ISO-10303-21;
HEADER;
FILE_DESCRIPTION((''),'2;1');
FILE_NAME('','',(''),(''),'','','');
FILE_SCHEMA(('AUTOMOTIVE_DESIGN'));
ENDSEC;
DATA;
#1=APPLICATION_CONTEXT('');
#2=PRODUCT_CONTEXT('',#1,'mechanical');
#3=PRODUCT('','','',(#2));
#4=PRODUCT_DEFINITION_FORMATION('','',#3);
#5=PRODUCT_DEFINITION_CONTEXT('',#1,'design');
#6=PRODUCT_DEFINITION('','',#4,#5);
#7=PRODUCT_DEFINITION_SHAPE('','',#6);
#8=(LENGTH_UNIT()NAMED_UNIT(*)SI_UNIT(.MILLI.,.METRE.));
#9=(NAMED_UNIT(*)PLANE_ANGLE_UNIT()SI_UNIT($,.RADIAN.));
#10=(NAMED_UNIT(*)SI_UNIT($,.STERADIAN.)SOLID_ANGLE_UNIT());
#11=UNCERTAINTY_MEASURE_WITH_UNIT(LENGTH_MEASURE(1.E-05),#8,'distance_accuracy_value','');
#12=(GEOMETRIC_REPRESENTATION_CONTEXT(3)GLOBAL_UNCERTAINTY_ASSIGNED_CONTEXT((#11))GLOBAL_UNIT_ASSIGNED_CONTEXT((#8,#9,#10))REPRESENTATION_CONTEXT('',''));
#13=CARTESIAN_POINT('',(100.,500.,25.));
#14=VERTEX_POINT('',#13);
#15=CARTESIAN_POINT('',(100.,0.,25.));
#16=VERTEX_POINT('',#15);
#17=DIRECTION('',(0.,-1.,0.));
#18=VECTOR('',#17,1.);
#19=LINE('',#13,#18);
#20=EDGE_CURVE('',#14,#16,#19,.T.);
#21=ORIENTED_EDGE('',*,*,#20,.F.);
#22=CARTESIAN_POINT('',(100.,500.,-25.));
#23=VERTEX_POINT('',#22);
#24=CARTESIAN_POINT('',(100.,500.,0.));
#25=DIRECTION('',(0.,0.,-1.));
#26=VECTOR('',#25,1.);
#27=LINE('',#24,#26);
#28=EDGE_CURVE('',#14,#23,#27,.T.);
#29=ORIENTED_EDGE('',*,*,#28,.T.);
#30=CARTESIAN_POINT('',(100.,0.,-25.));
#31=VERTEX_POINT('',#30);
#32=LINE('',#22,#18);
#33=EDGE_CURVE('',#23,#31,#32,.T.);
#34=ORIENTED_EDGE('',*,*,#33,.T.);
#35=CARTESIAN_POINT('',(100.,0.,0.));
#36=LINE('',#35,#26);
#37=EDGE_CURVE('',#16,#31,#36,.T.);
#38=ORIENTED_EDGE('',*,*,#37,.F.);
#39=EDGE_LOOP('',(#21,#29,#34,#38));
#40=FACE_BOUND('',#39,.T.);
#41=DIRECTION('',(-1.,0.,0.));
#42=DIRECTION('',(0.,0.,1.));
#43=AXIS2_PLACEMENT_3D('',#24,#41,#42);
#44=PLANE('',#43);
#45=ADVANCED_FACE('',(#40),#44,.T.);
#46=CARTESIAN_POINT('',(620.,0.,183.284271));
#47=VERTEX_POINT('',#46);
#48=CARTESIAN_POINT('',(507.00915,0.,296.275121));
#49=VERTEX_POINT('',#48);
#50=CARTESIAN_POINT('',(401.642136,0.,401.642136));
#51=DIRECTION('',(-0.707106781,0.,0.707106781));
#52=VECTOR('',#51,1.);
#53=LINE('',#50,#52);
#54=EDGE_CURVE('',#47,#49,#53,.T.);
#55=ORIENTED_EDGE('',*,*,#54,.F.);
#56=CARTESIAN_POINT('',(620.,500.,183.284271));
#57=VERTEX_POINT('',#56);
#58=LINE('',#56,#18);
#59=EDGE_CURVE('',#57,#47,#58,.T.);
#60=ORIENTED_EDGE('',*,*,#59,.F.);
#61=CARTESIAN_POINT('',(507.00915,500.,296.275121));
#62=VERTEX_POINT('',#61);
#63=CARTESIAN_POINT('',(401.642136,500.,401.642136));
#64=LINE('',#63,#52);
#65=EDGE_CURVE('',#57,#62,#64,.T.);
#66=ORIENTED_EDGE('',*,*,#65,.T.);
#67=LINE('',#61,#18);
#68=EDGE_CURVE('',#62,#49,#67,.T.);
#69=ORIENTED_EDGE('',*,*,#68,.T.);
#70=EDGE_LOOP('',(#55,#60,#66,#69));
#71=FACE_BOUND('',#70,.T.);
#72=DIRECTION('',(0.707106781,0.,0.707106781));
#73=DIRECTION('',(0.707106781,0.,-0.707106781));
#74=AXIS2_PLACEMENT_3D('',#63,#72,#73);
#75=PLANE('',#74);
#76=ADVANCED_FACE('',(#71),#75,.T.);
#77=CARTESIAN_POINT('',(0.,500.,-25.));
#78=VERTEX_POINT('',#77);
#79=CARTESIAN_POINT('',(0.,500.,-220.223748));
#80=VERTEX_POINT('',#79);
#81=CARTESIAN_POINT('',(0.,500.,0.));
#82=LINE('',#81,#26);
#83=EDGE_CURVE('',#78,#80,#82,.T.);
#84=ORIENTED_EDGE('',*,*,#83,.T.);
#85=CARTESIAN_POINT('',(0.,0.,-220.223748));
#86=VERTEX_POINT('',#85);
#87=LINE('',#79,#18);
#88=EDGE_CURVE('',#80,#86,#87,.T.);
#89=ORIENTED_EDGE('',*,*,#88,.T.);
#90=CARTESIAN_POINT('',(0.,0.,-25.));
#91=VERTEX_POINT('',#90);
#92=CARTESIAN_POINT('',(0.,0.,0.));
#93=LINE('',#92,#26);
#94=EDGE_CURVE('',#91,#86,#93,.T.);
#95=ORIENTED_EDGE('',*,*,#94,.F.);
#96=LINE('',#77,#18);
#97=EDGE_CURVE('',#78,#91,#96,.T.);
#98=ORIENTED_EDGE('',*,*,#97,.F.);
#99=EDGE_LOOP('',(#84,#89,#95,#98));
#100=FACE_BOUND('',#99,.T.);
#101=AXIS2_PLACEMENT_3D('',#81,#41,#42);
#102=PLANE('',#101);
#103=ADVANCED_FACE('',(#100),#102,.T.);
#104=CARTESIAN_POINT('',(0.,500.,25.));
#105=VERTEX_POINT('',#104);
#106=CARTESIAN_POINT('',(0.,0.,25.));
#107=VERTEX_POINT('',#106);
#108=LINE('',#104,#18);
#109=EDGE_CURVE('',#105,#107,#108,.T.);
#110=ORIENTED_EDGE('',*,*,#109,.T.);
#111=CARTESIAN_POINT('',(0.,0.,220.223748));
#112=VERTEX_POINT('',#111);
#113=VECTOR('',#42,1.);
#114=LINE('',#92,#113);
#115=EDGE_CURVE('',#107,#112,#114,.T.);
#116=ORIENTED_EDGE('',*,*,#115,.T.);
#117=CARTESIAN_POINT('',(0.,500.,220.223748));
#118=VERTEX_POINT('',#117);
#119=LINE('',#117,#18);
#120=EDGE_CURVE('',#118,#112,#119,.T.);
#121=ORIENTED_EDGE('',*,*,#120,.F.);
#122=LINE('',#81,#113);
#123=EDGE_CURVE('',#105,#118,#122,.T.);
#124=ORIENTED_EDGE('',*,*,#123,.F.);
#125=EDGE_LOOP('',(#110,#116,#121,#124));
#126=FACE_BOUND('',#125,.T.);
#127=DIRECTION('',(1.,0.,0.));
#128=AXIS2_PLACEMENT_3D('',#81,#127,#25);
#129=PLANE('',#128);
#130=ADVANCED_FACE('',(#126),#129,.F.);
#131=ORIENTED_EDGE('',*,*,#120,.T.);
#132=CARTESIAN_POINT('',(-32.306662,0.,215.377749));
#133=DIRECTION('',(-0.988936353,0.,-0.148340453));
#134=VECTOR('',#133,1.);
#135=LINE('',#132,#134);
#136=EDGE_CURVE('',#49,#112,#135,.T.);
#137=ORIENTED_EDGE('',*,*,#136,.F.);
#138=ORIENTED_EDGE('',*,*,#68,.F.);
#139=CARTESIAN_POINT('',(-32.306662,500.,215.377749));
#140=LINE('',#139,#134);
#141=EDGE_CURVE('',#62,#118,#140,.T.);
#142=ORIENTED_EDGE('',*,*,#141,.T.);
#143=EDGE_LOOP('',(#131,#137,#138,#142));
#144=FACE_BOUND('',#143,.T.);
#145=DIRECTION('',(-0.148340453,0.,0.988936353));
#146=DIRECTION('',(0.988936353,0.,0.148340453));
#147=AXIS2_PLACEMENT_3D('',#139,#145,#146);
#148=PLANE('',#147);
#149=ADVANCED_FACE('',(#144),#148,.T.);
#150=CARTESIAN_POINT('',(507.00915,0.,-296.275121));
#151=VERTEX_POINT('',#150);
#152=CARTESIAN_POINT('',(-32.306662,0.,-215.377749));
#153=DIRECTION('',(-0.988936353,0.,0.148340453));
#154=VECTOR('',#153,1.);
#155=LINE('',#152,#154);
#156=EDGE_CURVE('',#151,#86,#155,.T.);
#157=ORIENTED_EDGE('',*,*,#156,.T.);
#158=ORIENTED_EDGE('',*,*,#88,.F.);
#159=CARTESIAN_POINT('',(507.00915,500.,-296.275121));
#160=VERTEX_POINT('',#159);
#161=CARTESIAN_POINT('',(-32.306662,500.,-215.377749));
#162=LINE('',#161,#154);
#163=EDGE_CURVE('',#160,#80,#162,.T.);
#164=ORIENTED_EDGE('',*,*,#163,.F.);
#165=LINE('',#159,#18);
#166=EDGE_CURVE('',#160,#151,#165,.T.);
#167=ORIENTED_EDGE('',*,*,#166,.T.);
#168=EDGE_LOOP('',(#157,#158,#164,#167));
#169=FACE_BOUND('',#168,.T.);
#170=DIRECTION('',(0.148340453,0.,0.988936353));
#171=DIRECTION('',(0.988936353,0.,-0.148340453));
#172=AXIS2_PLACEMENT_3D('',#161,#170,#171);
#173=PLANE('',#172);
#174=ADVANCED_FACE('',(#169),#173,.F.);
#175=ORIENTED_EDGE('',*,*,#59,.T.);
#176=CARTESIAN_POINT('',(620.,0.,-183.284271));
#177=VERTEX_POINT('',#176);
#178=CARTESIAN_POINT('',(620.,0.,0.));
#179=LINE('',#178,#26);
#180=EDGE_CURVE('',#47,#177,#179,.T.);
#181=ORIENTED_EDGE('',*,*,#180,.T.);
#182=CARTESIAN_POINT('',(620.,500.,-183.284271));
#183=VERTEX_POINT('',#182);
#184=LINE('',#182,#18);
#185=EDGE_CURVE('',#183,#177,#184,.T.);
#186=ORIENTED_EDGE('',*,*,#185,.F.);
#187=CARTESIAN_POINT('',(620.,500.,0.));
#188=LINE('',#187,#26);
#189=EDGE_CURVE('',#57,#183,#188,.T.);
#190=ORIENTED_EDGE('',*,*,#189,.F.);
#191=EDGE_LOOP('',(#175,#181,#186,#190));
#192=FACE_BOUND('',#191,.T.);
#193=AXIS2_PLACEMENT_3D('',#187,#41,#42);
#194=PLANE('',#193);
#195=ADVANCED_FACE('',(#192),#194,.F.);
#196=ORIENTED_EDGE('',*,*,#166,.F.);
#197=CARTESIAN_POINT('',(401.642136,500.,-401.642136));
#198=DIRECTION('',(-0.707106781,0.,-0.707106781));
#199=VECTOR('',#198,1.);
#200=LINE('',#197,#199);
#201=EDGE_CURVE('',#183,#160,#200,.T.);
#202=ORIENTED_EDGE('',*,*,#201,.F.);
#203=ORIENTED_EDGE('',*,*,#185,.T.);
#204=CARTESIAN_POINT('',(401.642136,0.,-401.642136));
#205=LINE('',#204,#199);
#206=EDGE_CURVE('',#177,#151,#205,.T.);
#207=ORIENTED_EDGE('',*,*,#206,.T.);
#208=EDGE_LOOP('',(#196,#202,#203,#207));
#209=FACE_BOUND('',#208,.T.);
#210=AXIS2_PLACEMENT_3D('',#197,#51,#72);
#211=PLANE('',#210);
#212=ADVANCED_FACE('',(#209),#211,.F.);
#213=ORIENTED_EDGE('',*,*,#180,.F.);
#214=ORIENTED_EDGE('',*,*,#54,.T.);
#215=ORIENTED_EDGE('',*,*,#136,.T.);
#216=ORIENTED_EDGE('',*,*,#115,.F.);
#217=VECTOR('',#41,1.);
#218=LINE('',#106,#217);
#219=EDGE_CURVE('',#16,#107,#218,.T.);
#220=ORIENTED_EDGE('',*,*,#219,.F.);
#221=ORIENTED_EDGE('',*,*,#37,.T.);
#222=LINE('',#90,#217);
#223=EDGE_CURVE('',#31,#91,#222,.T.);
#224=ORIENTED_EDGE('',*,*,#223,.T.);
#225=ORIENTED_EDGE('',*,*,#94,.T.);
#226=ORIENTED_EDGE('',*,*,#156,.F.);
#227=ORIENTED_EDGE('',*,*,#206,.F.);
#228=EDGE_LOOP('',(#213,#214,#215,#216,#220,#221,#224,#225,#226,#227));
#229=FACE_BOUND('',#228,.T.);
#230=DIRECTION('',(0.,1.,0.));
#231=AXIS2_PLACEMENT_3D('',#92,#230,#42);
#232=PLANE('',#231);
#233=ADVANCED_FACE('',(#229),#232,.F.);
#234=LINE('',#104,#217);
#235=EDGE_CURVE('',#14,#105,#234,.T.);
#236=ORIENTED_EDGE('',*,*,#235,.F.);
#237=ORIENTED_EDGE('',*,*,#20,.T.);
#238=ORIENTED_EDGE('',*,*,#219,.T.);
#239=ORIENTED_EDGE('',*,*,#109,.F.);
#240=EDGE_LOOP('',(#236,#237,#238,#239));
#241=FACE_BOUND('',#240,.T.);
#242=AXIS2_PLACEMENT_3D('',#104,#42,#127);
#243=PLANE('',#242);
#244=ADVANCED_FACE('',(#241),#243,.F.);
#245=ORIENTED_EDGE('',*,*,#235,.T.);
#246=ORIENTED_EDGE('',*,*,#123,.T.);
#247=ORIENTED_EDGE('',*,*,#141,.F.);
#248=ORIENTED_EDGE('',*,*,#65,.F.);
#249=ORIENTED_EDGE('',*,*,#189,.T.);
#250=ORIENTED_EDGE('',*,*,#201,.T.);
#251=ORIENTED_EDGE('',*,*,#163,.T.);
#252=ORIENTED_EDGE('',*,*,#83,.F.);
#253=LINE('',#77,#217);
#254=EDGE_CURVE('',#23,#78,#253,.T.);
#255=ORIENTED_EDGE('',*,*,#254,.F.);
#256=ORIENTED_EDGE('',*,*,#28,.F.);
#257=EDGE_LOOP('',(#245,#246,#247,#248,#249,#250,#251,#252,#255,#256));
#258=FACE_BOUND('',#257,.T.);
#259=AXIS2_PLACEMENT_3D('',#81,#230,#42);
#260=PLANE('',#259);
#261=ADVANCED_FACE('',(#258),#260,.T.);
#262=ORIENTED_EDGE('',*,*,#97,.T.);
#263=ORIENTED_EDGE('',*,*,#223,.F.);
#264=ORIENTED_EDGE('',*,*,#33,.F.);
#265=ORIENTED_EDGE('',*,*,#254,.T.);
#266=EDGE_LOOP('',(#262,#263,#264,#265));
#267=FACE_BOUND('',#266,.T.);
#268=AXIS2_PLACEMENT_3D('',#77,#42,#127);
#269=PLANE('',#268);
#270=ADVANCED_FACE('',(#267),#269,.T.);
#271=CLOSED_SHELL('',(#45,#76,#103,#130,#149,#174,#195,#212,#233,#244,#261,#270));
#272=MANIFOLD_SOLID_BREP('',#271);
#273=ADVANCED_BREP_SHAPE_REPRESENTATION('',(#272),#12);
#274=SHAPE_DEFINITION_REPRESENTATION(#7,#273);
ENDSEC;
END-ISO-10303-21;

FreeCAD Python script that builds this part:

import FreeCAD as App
import Part
import Sketcher

V = App.Vector


def add_polygon(sketch, points):
    """Adds a closed chain of lines whose ends are joined by coincident constraints."""
    first, n = sketch.GeometryCount, len(points)
    for a, b in zip(points, points[1:] + points[:1]):
        sketch.addGeometry(Part.LineSegment(App.Vector(*a, 0), App.Vector(*b, 0)), False)
    for i in range(n):
        sketch.addConstraint(Sketcher.Constraint("Coincident", first + i, 2, first + (i + 1) % n, 1))

doc = App.newDocument("Part")
body = doc.addObject("PartDesign::Body", "Body")

# Sketch on XZ plane
sketch1 = doc.addObject("Sketcher::SketchObject", "Sketch")
body.addObject(sketch1)
sketch1.AttachmentSupport = (doc.XZ_Plane, [""])
sketch1.MapMode = "FlatFace"
add_polygon(sketch1, [(100, -25), (100, 25), (0, 25), (0, 220.223748), (507.00915, 296.275121), (620, 183.284271), (620, -183.284271), (507.00915, -296.275121), (0, -220.223748), (0, -25)])  # lines 0-9
sketch1.addConstraint([
    Sketcher.Constraint("Vertical", 0),
    Sketcher.Constraint("Horizontal", 1),
    Sketcher.Constraint("Vertical", 2),
    Sketcher.Constraint("Vertical", 5),
    Sketcher.Constraint("Vertical", 8),
    Sketcher.Constraint("Horizontal", 9),
    Sketcher.Constraint("Symmetric", 2, 2, 7, 2, -1, 1),
    Sketcher.Constraint("Symmetric", 3, 2, 6, 2, -1),
    Sketcher.Constraint("Symmetric", 1, 2, 8, 2, -1),
    Sketcher.Constraint("Perpendicular", 4, 6),
    Sketcher.Constraint("Equal", 4, 6),
    Sketcher.Constraint("DistanceX", 1, 2, 1, 1, 100.0),
    Sketcher.Constraint("DistanceY", 0, 1, 0, 2, 50.0),
    Sketcher.Constraint("DistanceX", -1, 1, 4, 2, 620.0),
    Sketcher.Constraint("DistanceY", 2, 1, 2, 2, 195.223748),
    Sketcher.Constraint("DistanceY", 5, 2, 5, 1, 366.568542),
    Sketcher.Constraint("DistanceX", -1, 1, 3, 2, 507.00915),
])
pad1 = doc.addObject("PartDesign::Pad", "Pad")
body.addObject(pad1)
pad1.Profile = sketch1
pad1.Length = 500
pad1.Reversed = True

doc.recompute()
